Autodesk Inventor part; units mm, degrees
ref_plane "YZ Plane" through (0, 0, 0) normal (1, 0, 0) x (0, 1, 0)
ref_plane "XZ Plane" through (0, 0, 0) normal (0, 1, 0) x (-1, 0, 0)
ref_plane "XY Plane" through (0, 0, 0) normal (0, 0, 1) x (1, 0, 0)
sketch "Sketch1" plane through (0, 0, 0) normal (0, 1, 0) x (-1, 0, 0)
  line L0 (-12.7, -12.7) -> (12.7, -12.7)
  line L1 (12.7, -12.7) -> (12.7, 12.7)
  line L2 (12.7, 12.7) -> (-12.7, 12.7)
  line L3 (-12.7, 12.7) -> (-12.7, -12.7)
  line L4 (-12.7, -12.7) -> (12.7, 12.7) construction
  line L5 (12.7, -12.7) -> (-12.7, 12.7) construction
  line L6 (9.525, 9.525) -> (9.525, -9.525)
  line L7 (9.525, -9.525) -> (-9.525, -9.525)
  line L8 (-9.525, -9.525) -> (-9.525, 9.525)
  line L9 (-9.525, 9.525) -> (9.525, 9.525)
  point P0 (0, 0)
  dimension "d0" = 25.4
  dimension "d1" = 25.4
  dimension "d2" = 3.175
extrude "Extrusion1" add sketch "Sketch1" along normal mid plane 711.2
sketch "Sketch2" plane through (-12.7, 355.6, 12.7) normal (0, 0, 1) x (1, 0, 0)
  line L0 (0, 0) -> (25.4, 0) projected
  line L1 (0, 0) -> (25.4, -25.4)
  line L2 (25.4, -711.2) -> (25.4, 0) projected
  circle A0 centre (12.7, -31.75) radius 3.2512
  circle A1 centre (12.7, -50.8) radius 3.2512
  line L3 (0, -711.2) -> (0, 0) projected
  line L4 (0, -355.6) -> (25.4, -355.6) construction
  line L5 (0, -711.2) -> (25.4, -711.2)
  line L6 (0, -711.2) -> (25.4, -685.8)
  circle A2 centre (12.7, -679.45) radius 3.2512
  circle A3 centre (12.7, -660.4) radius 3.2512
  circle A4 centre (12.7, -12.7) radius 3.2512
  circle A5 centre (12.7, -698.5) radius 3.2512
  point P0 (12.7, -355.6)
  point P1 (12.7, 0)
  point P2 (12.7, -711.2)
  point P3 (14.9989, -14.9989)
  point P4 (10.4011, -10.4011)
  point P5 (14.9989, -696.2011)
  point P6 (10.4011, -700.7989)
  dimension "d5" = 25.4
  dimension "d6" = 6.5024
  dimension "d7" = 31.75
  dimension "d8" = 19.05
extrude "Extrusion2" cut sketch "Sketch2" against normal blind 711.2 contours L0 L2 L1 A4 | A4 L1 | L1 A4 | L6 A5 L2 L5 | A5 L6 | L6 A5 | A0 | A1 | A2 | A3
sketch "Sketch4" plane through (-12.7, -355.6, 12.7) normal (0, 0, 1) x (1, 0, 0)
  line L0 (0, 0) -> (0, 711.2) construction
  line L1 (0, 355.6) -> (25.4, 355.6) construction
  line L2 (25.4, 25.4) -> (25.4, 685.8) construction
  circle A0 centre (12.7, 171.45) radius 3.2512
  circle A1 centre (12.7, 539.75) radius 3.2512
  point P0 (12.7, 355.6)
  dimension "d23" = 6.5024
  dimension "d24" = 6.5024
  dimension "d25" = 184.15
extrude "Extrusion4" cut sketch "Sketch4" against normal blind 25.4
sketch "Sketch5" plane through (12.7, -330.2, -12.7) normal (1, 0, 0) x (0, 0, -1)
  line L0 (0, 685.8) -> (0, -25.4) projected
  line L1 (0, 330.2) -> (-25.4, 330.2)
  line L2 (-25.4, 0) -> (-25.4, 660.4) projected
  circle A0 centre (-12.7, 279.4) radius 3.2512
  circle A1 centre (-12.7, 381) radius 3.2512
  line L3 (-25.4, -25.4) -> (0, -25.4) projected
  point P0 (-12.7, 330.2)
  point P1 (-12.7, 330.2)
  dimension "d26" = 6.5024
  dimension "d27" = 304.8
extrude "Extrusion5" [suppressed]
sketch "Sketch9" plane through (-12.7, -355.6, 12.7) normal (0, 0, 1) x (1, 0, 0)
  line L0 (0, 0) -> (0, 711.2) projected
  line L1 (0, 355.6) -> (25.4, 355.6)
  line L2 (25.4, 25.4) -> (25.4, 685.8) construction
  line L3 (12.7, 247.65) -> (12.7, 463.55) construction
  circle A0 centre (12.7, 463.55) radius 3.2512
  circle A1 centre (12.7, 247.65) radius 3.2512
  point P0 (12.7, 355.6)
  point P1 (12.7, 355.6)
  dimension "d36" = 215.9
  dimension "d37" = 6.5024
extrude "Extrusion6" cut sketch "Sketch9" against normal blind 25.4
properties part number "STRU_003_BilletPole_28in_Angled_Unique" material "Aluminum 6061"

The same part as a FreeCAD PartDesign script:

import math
import FreeCAD as App
import Part
import Sketcher
from FreeCAD import Vector
Q = App.Units.Quantity


def add_polygon(sketch, points):
    """Adds a closed chain of lines whose ends are joined by coincident constraints."""
    first, n = sketch.GeometryCount, len(points)
    for a, b in zip(points, points[1:] + points[:1]):
        sketch.addGeometry(Part.LineSegment(App.Vector(*a, 0), App.Vector(*b, 0)), False)
    for i in range(n):
        sketch.addConstraint(Sketcher.Constraint("Coincident", first + i, 2, first + (i + 1) % n, 1))

doc = App.newDocument("Part")
body = doc.addObject("PartDesign::Body", "Body")

# Sketch on XZ plane
sketch1 = body.newObject("Sketcher::SketchObject", "Sketch")
sketch1.AttachmentSupport = (doc.getObject("XZ_Plane"), [""])
sketch1.MapMode = "FlatFace"
add_polygon(sketch1, [(12.7, 12.7), (12.7, -12.7), (-12.7, -12.7), (-12.7, 12.7)])  # lines 0-3
add_polygon(sketch1, [(9.525, 9.525), (-9.525, 9.525), (-9.525, -9.525), (9.525, -9.525)])  # lines 4-7
sketch1.addConstraint([
    Sketcher.Constraint("Vertical", 0),
    Sketcher.Constraint("Horizontal", 1),
    Sketcher.Constraint("Vertical", 2),
    Sketcher.Constraint("Horizontal", 3),
    Sketcher.Constraint("Horizontal", 4),
    Sketcher.Constraint("Vertical", 5),
    Sketcher.Constraint("Horizontal", 6),
    Sketcher.Constraint("Vertical", 7),
    Sketcher.Constraint("Symmetric", 0, 2, 2, 2, -1, 1),
    Sketcher.Constraint("Symmetric", 4, 2, 6, 2, -1, 1),
    Sketcher.Constraint("Equal", 3, 0),
    Sketcher.Constraint("Equal", 6, 5),
    Sketcher.Constraint("DistanceX", 1, 2, 1, 1, Q("1 in")),
    Sketcher.Constraint("DistanceX", 2, 2, 4, 2, Q("0.125 in")),
])
pad1 = body.newObject("PartDesign::Pad", "Pad")
pad1.Profile = sketch1
pad1.Length = Q("28 in")
pad1.Midplane = True

# Sketch on XY plane
sketch2 = body.newObject("Sketcher::SketchObject", "Sketch001")
sketch2.AttachmentSupport = (doc.getObject("XY_Plane"), [""])
sketch2.MapMode = "FlatFace"
sketch2.AttachmentOffset = App.Placement(Vector(0, 0, 0.5 * 25.4), App.Rotation())
sketch2.addGeometry([
    Part.LineSegment(Vector(12.7, 355.6, 0), Vector(-12.7, 355.6, 0)),  # 0
    Part.LineSegment(Vector(-12.7, 355.6, 0), Vector(-2.298946, 345.198946, 0)),  # 1
    Part.ArcOfCircle(Part.Circle(Vector(0, 342.9, 0), Vector(0, 0, 1), 3.2512), math.radians(135), math.radians(315)),  # 2
    Part.LineSegment(Vector(2.298946, 340.601054, 0), Vector(12.7, 330.2, 0)),  # 3
    Part.LineSegment(Vector(12.7, 330.2, 0), Vector(12.7, 355.6, 0)),  # 4
    Part.LineSegment(Vector(-2.298946, -345.198946, 0), Vector(-12.7, -355.6, 0)),  # 5
    Part.LineSegment(Vector(-12.7, -355.6, 0), Vector(12.7, -355.6, 0)),  # 6
    Part.LineSegment(Vector(12.7, -355.6, 0), Vector(12.7, -330.2, 0)),  # 7
    Part.LineSegment(Vector(12.7, -330.2, 0), Vector(2.298946, -340.601054, 0)),  # 8
    Part.ArcOfCircle(Part.Circle(Vector(0, -342.9, 0), Vector(0, 0, 1), 3.2512), math.radians(45), math.radians(225)),  # 9
    Part.Circle(Vector(0, 323.85, 0), Vector(0, 0, 1), 3.2512),  # 10
    Part.Circle(Vector(0, 304.8, 0), Vector(0, 0, 1), 3.2512),  # 11
    Part.Circle(Vector(0, -323.85, 0), Vector(0, 0, 1), 3.2512),  # 12
    Part.Circle(Vector(0, -304.8, 0), Vector(0, 0, 1), 3.2512),  # 13
], False)
sketch2.addConstraint([
    Sketcher.Constraint("Coincident", 0, 2, 1, 1),
    Sketcher.Constraint("Coincident", 1, 2, 2, 1),
    Sketcher.Constraint("Coincident", 2, 2, 3, 1),
    Sketcher.Constraint("Coincident", 3, 2, 4, 1),
    Sketcher.Constraint("Coincident", 4, 2, 0, 1),
    Sketcher.Constraint("Coincident", 5, 2, 6, 1),
    Sketcher.Constraint("Coincident", 6, 2, 7, 1),
    Sketcher.Constraint("Coincident", 7, 2, 8, 1),
    Sketcher.Constraint("Coincident", 8, 2, 9, 1),
    Sketcher.Constraint("Coincident", 9, 2, 5, 1),
    Sketcher.Constraint("Horizontal", 0),
    Sketcher.Constraint("Vertical", 4),
    Sketcher.Constraint("Horizontal", 6),
    Sketcher.Constraint("Vertical", 7),
    Sketcher.Constraint("Equal", 2, 9),
    Sketcher.Constraint("Equal", 9, 10),
    Sketcher.Constraint("Equal", 10, 11),
    Sketcher.Constraint("Equal", 11, 12),
    Sketcher.Constraint("Equal", 12, 13),
    Sketcher.Constraint("Symmetric", 2, 3, 9, 3, -1, 1),
    Sketcher.Constraint("Symmetric", 10, 3, 12, 3, -1, 1),
    Sketcher.Constraint("Symmetric", 11, 3, 13, 3, -1, 1),
    Sketcher.Constraint("Symmetric", 4, 2, 5, 2, -1, 1),
    Sketcher.Constraint("Symmetric", 3, 2, 7, 2, -1),
    Sketcher.Constraint("Symmetric", 2, 2, 8, 2, -1),
    Sketcher.Constraint("PointOnObject", 10, 3, -2),
    Sketcher.Constraint("PointOnObject", 11, 3, -2),
    Sketcher.Constraint("Parallel", 1, 3),
    Sketcher.Constraint("Perpendicular", 3, 5),
    Sketcher.Constraint("Parallel", 5, 8),
    Sketcher.Constraint("Vertical", 0, 2, 5, 2),
    Sketcher.Constraint("Equal", 6, 4),
    Sketcher.Constraint("Equal", 1, 3),
    Sketcher.Constraint("DistanceX", 0, 2, 0, 1, Q("1 in")),
    Sketcher.Constraint("Diameter", 10, Q("0.256 in")),
    Sketcher.Constraint("DistanceY", 11, 3, 3, 2, Q("1 in")),
    Sketcher.Constraint("DistanceY", 10, 3, 2, 3, Q("0.75 in")),
    Sketcher.Constraint("DistanceY", -1, 1, 11, 3, Q("12 in")),
])
pocket1 = body.newObject("PartDesign::Pocket", "Pocket")
pocket1.Profile = sketch2
pocket1.Length = Q("28 in")

# Sketch on XY plane
sketch3 = body.newObject("Sketcher::SketchObject", "Sketch002")
sketch3.AttachmentSupport = (doc.getObject("XY_Plane"), [""])
sketch3.MapMode = "FlatFace"
sketch3.AttachmentOffset = App.Placement(Vector(0, 0, 0.5 * 25.4), App.Rotation())
sketch3.addGeometry([
    Part.Circle(Vector(0, -184.15, 0), Vector(0, 0, 1), 3.2512),
    Part.Circle(Vector(0, 184.15, 0), Vector(0, 0, 1), 3.2512),
], False)
sketch3.addConstraint([
    Sketcher.Constraint("Equal", 0, 1),
    Sketcher.Constraint("Symmetric", 0, 3, 1, 3, -1, 1),
    Sketcher.Constraint("PointOnObject", 0, 3, -2),
    Sketcher.Constraint("Diameter", 0, Q("0.256 in")),
    Sketcher.Constraint("DistanceY", 0, 3, -1, 1, Q("7.25 in")),
])
pocket2 = body.newObject("PartDesign::Pocket", "Pocket001")
pocket2.Profile = sketch3
pocket2.Length = Q("1 in")

# Sketch on XY plane
sketch4 = body.newObject("Sketcher::SketchObject", "Sketch003")
sketch4.AttachmentSupport = (doc.getObject("XY_Plane"), [""])
sketch4.MapMode = "FlatFace"
sketch4.AttachmentOffset = App.Placement(Vector(0, 0, 0.5 * 25.4), App.Rotation())
sketch4.addGeometry([
    Part.Circle(Vector(0, 107.95, 0), Vector(0, 0, 1), 3.2512),
    Part.Circle(Vector(0, -107.95, 0), Vector(0, 0, 1), 3.2512),
], False)
sketch4.addConstraint([
    Sketcher.Constraint("Equal", 0, 1),
    Sketcher.Constraint("Symmetric", 0, 3, 1, 3, -1, 1),
    Sketcher.Constraint("PointOnObject", 0, 3, -2),
    Sketcher.Constraint("Diameter", 0, Q("0.256 in")),
    Sketcher.Constraint("DistanceY", 1, 3, 0, 3, Q("8.5 in")),
])
pocket3 = body.newObject("PartDesign::Pocket", "Pocket002")
pocket3.Profile = sketch4
pocket3.Length = Q("1 in")

doc.recompute()
